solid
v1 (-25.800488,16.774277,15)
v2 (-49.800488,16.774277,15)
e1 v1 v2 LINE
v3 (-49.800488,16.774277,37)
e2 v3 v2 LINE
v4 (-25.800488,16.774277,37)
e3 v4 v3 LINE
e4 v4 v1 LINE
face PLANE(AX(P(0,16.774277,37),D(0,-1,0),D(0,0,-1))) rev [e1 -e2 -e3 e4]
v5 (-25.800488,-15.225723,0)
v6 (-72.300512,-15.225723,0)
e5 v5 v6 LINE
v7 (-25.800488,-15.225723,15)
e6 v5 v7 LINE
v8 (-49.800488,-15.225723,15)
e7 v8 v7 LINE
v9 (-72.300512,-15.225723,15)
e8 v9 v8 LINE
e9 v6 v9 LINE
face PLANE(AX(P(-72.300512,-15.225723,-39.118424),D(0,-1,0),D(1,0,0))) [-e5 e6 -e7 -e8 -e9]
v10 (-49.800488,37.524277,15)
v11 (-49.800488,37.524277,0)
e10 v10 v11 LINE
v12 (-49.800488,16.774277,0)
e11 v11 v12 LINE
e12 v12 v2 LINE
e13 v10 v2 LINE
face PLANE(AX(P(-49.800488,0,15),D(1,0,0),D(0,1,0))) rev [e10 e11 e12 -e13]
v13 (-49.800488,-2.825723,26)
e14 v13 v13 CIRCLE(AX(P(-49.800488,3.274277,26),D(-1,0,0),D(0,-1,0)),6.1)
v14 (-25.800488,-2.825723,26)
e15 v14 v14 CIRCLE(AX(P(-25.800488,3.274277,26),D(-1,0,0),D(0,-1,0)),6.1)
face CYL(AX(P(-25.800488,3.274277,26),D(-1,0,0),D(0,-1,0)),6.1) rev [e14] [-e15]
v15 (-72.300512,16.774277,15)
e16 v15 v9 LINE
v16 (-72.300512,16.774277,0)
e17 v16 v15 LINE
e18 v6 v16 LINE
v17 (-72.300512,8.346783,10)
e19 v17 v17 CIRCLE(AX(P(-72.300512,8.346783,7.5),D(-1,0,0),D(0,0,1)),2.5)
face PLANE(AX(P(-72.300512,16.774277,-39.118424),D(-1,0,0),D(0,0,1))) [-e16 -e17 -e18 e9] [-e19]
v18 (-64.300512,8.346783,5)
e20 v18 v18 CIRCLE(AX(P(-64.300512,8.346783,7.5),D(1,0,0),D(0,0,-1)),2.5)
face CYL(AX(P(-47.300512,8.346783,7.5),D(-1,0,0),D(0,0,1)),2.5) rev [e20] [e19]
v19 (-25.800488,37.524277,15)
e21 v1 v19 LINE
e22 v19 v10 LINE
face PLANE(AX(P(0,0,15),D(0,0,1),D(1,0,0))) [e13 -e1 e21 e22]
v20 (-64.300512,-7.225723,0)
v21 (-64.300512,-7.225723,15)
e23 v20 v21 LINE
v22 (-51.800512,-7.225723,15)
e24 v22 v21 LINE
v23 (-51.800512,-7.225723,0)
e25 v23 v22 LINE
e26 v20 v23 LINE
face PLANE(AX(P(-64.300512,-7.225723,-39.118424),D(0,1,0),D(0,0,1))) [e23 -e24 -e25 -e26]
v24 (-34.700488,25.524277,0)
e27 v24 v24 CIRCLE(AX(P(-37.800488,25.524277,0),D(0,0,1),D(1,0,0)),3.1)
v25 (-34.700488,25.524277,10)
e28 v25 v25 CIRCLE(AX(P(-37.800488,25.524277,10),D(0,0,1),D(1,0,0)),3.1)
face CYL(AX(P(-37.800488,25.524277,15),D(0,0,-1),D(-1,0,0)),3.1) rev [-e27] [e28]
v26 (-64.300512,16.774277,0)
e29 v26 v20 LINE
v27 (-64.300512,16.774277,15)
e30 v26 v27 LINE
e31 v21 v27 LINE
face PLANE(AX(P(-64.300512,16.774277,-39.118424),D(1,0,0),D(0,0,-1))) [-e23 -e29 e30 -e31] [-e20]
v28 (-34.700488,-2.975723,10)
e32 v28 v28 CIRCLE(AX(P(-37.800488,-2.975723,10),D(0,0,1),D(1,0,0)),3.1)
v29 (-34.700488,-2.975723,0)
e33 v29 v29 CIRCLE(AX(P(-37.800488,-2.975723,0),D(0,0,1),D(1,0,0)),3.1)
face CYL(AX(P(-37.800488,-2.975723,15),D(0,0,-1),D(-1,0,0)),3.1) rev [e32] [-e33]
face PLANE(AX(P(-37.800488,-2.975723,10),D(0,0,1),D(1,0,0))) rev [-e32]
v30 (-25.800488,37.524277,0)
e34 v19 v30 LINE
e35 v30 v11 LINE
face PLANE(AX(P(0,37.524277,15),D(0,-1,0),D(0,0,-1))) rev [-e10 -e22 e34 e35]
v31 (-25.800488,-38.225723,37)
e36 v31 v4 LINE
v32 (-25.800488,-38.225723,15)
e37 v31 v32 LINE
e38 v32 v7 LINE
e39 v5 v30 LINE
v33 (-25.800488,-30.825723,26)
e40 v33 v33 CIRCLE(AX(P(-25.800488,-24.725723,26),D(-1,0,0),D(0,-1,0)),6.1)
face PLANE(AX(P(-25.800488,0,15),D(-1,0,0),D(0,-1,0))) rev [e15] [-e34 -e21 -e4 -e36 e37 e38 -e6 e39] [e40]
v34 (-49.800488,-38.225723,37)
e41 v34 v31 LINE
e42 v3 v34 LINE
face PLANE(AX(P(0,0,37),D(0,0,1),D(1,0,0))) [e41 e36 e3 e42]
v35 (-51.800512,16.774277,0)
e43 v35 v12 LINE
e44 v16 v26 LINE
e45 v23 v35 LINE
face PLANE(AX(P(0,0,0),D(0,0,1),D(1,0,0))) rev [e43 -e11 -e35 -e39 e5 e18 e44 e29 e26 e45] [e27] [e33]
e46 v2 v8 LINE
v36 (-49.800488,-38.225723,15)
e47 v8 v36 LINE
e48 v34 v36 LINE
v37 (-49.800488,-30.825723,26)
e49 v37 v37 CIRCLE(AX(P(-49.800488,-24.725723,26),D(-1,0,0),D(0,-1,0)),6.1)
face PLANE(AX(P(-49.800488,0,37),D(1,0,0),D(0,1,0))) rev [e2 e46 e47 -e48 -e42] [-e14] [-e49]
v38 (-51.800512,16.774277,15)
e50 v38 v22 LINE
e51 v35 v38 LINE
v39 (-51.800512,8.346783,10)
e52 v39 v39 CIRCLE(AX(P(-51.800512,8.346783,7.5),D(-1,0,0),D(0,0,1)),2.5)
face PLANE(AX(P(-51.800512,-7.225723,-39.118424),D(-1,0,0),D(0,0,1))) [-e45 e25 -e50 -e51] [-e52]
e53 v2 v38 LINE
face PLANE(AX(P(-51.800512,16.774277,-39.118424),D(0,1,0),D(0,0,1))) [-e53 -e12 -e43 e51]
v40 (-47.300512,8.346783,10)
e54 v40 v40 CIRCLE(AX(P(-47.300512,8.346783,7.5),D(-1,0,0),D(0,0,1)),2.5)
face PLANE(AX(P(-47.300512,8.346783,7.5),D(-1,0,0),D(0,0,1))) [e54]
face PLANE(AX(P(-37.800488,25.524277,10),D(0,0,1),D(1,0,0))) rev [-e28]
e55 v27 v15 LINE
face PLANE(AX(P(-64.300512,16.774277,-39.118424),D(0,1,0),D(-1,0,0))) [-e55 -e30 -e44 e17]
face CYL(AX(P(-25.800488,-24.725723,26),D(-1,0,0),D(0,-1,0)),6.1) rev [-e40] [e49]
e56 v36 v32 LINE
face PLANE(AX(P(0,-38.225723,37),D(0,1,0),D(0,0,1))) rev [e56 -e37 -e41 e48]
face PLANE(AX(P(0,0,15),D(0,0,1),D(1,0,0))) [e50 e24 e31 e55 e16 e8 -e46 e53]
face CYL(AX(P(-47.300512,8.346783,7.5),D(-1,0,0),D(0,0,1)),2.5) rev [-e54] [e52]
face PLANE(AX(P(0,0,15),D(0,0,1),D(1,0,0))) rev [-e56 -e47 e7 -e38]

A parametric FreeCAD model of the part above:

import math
import FreeCAD as App
import Part
import Sketcher
from FreeCAD import Vector
Q = App.Units.Quantity

doc = App.newDocument("Part")
body = doc.addObject("PartDesign::Body", "Body")

# Sketch on XY plane
sketch1 = body.newObject("Sketcher::SketchObject", "Sketch")
sketch1.AttachmentSupport = (doc.getObject("XY_Plane"), [""])
sketch1.MapMode = "FlatFace"
sketch1.addGeometry(Part.LineSegment(Vector(-25.800488, 37.524277, 0), Vector(-49.800488, 37.524277, 0)), False)
sketch1.addGeometry(Part.LineSegment(Vector(-49.800488, 37.524277, 0), Vector(-49.800488, -14.975723, 0)), False)
sketch1.addGeometry(Part.LineSegment(Vector(-49.800488, -14.975723, 0), Vector(-41.800488, -45.286415, 0)), False)
sketch1.addGeometry(Part.ArcOfCircle(Part.Circle(Vector(-37.800488, -45.286415, 0), Vector(0, 0, 1), 4), math.radians(180), math.radians(360)), False)
sketch1.addGeometry(Part.LineSegment(Vector(-33.800488, -45.286415, 0), Vector(-25.800488, -14.975723, 0)), False)
sketch1.addGeometry(Part.LineSegment(Vector(-25.800488, -14.975723, 0), Vector(-25.800488, 37.524277, 0)), False)
sketch1.addGeometry(Part.Circle(Vector(-37.800488, -45.286415, 0), Vector(0, 0, 1), 2.5), False)
sketch1.addGeometry(Part.Circle(Vector(-37.800488, -2.975723, 0), Vector(0, 0, 1), 3.1), False)
sketch1.addGeometry(Part.Circle(Vector(-37.800488, 25.524277, 0), Vector(0, 0, 1), 3.1), False)
sketch1.addConstraint(Sketcher.Constraint("Coincident", 0, 2, 1, 1))
sketch1.addConstraint(Sketcher.Constraint("Coincident", 1, 2, 2, 1))
sketch1.addConstraint(Sketcher.Constraint("Coincident", 2, 2, 3, 1))
sketch1.addConstraint(Sketcher.Constraint("Coincident", 3, 2, 4, 1))
sketch1.addConstraint(Sketcher.Constraint("Coincident", 4, 2, 5, 1))
sketch1.addConstraint(Sketcher.Constraint("Coincident", 5, 2, 0, 1))
sketch1.addConstraint(Sketcher.Constraint("Horizontal", 0))
sketch1.addConstraint(Sketcher.Constraint("Vertical", 1))
sketch1.addConstraint(Sketcher.Constraint("Vertical", 5))
sketch1.addConstraint(Sketcher.Constraint("Coincident", 6, 3, 3, 3))
sketch1.addConstraint(Sketcher.Constraint("Equal", 7, 8))
sketch1.addConstraint(Sketcher.Constraint("Horizontal", 6, 3, 2, 2))
sketch1.addConstraint(Sketcher.Constraint("Horizontal", 2, 2, 3, 2))
sketch1.addConstraint(Sketcher.Constraint("Horizontal", 1, 2, 4, 2))
sketch1.addConstraint(Sketcher.Constraint("Vertical", 6, 3, 7, 3))
sketch1.addConstraint(Sketcher.Constraint("Vertical", 7, 3, 8, 3))
sketch1.addConstraint(Sketcher.Constraint("Equal", 2, 4))
sketch1.addConstraint(Sketcher.Constraint("Diameter", 6, Q("5 mm")))
sketch1.addConstraint(Sketcher.Constraint("Radius", 3, Q("4 mm")))
sketch1.addConstraint(Sketcher.Constraint("Diameter", 7, Q("6.2 mm")))
sketch1.addConstraint(Sketcher.Constraint("DistanceX", 0, 2, 0, 1, Q("24 mm")))
sketch1.addConstraint(Sketcher.Constraint("DistanceY", 1, 2, 1, 1, Q("52.5 mm")))
sketch1.addConstraint(Sketcher.Constraint("DistanceY", 8, 3, 0, 2, Q("12 mm")))
sketch1.addConstraint(Sketcher.Constraint("DistanceY", 1, 2, 7, 3, Q("12 mm")))
sketch1.addConstraint(Sketcher.Constraint("DistanceX", 3, 3, -1, 1, Q("37.800488 mm")))
sketch1.addConstraint(Sketcher.Constraint("DistanceY", 3, 3, 7, 3, Q("42.310691 mm")))
sketch1.addConstraint(Sketcher.Constraint("DistanceY", 3, 3, -1, 1, Q("45.286415 mm")))
pad1 = body.newObject("PartDesign::Pad", "Pad")
pad1.Profile = sketch1
pad1.Length = 15

# Sketch on XY plane
sketch2 = body.newObject("Sketcher::SketchObject", "Sketch001")
sketch2.AttachmentSupport = (doc.getObject("XY_Plane"), [""])
sketch2.MapMode = "FlatFace"
sketch2.AttachmentOffset = App.Placement(Vector(0, 0, 15), App.Rotation())
sketch2.addGeometry(Part.Circle(Vector(-37.800488, -2.975723, 0), Vector(0, 0, 1), 3.1), False)
sketch2.addGeometry(Part.Circle(Vector(-37.800488, 25.524277, 0), Vector(0, 0, 1), 3.1), False)
sketch2.addConstraint(Sketcher.Constraint("Equal", 0, 1))
sketch2.addConstraint(Sketcher.Constraint("Vertical", 0, 3, 1, 3))
sketch2.addConstraint(Sketcher.Constraint("Diameter", 0, Q("6.2 mm")))
sketch2.addConstraint(Sketcher.Constraint("DistanceY", 0, 3, 1, 3, Q("28.5 mm")))
sketch2.addConstraint(Sketcher.Constraint("DistanceX", 0, 3, -1, 1, Q("37.800488 mm")))
sketch2.addConstraint(Sketcher.Constraint("DistanceY", 0, 3, -1, 1, Q("2.975723 mm")))
pad2 = body.newObject("PartDesign::Pad", "Pad001")
pad2.Profile = sketch2
pad2.Length = 5
pad2.Reversed = True

# Sketch on XY plane
sketch3 = body.newObject("Sketcher::SketchObject", "Sketch002")
sketch3.AttachmentSupport = (doc.getObject("XY_Plane"), [""])
sketch3.MapMode = "FlatFace"
sketch3.AttachmentOffset = App.Placement(Vector(0, 0, 15), App.Rotation())
sketch3.addGeometry(Part.LineSegment(Vector(-49.800488, 16.774277, 0), Vector(-51.800512, 16.774277, 0)), False)
sketch3.addGeometry(Part.LineSegment(Vector(-51.800512, 16.774277, 0), Vector(-51.800512, -7.225723, 0)), False)
sketch3.addGeometry(Part.LineSegment(Vector(-51.800512, -7.225723, 0), Vector(-64.300512, -7.225723, 0)), False)
sketch3.addGeometry(Part.LineSegment(Vector(-64.300512, -7.225723, 0), Vector(-64.300512, 16.774277, 0)), False)
sketch3.addGeometry(Part.LineSegment(Vector(-64.300512, 16.774277, 0), Vector(-72.300512, 16.774277, 0)), False)
sketch3.addGeometry(Part.LineSegment(Vector(-72.300512, 16.774277, 0), Vector(-72.300512, -15.225723, 0)), False)
sketch3.addGeometry(Part.LineSegment(Vector(-72.300512, -15.225723, 0), Vector(-49.800488, -15.225723, 0)), False)
sketch3.addGeometry(Part.LineSegment(Vector(-49.800488, -15.225723, 0), Vector(-49.800488, 16.774277, 0)), False)
sketch3.addConstraint(Sketcher.Constraint("Coincident", 0, 2, 1, 1))
sketch3.addConstraint(Sketcher.Constraint("Coincident", 1, 2, 2, 1))
sketch3.addConstraint(Sketcher.Constraint("Coincident", 2, 2, 3, 1))
sketch3.addConstraint(Sketcher.Constraint("Coincident", 3, 2, 4, 1))
sketch3.addConstraint(Sketcher.Constraint("Coincident", 4, 2, 5, 1))
sketch3.addConstraint(Sketcher.Constraint("Coincident", 5, 2, 6, 1))
sketch3.addConstraint(Sketcher.Constraint("Coincident", 6, 2, 7, 1))
sketch3.addConstraint(Sketcher.Constraint("Coincident", 7, 2, 0, 1))
sketch3.addConstraint(Sketcher.Constraint("Horizontal", 0))
sketch3.addConstraint(Sketcher.Constraint("Vertical", 1))
sketch3.addConstraint(Sketcher.Constraint("Horizontal", 2))
sketch3.addConstraint(Sketcher.Constraint("Vertical", 3))
sketch3.addConstraint(Sketcher.Constraint("Horizontal", 4))
sketch3.addConstraint(Sketcher.Constraint("Vertical", 5))
sketch3.addConstraint(Sketcher.Constraint("Horizontal", 6))
sketch3.addConstraint(Sketcher.Constraint("Vertical", 7))
sketch3.addConstraint(Sketcher.Constraint("Horizontal", 0, 2, 3, 2))
sketch3.addConstraint(Sketcher.Constraint("DistanceX", 4, 2, 4, 1, Q("8 mm")))
sketch3.addConstraint(Sketcher.Constraint("DistanceY", 1, 2, 1, 1, Q("24 mm")))
sketch3.addConstraint(Sketcher.Constraint("DistanceY", 5, 2, 5, 1, Q("32 mm")))
sketch3.addConstraint(Sketcher.Constraint("DistanceX", 2, 2, 2, 1, Q("12.5 mm")))
sketch3.addConstraint(Sketcher.Constraint("DistanceX", 0, 2, 0, 1, Q("2.000024 mm")))
sketch3.addConstraint(Sketcher.Constraint("DistanceX", 0, 2, -1, 1, Q("51.800512 mm")))
sketch3.addConstraint(Sketcher.Constraint("DistanceY", -1, 1, 0, 2, Q("16.774277 mm")))
pad3 = body.newObject("PartDesign::Pad", "Pad002")
pad3.Profile = sketch3
pad3.Length = 15
pad3.Reversed = True

# Sketch on YZ plane
sketch4 = body.newObject("Sketcher::SketchObject", "Sketch003")
sketch4.AttachmentSupport = (doc.getObject("YZ_Plane"), [""])
sketch4.MapMode = "FlatFace"
sketch4.AttachmentOffset = App.Placement(Vector(0, 0, -72.300512), App.Rotation())
sketch4.addGeometry(Part.Circle(Vector(8.346783, 7.5, 0), Vector(0, 0, 1), 2.5), False)
sketch4.addConstraint(Sketcher.Constraint("Diameter", 0, Q("5 mm")))
sketch4.addConstraint(Sketcher.Constraint("DistanceY", -1, 1, 0, 3, Q("7.5 mm")))
sketch4.addConstraint(Sketcher.Constraint("DistanceX", -1, 1, 0, 3, Q("8.346783 mm")))
pocket1 = body.newObject("PartDesign::Pocket", "Pocket")
pocket1.Profile = sketch4
pocket1.Length = 25
pocket1.Reversed = True

# Sketch on XY plane
sketch5 = body.newObject("Sketcher::SketchObject", "Sketch004")
sketch5.AttachmentSupport = (doc.getObject("XY_Plane"), [""])
sketch5.MapMode = "FlatFace"
sketch5.AttachmentOffset = App.Placement(Vector(0, 0, 15), App.Rotation())
sketch5.addGeometry(Part.LineSegment(Vector(-49.800488, -14.975723, 0), Vector(-49.800488, -50.615056, 0)), False)
sketch5.addGeometry(Part.LineSegment(Vector(-49.800488, -50.615056, 0), Vector(-25.800488, -50.615056, 0)), False)
sketch5.addGeometry(Part.LineSegment(Vector(-25.800488, -50.615056, 0), Vector(-25.800488, -14.975723, 0)), False)
sketch5.addGeometry(Part.LineSegment(Vector(-25.800488, -14.975723, 0), Vector(-49.800488, -14.975723, 0)), False)
sketch5.addConstraint(Sketcher.Constraint("Coincident", 0, 2, 1, 1))
sketch5.addConstraint(Sketcher.Constraint("Coincident", 1, 2, 2, 1))
sketch5.addConstraint(Sketcher.Constraint("Coincident", 2, 2, 3, 1))
sketch5.addConstraint(Sketcher.Constraint("Coincident", 3, 2, 0, 1))
sketch5.addConstraint(Sketcher.Constraint("Vertical", 0))
sketch5.addConstraint(Sketcher.Constraint("Horizontal", 1))
sketch5.addConstraint(Sketcher.Constraint("Vertical", 2))
sketch5.addConstraint(Sketcher.Constraint("Horizontal", 3))
sketch5.addConstraint(Sketcher.Constraint("DistanceX", 1, 1, 1, 2, Q("24 mm")))
sketch5.addConstraint(Sketcher.Constraint("DistanceY", 0, 2, 0, 1, Q("35.639332 mm")))
sketch5.addConstraint(Sketcher.Constraint("DistanceX", 0, 2, -1, 1, Q("49.800488 mm")))
sketch5.addConstraint(Sketcher.Constraint("DistanceY", 0, 2, -1, 1, Q("50.615056 mm")))
pocket2 = body.newObject("PartDesign::Pocket", "Pocket001")
pocket2.Profile = sketch5
pocket2.Type = "ThroughAll"

# Sketch on XY plane
sketch6 = body.newObject("Sketcher::SketchObject", "Sketch005")
sketch6.AttachmentSupport = (doc.getObject("XY_Plane"), [""])
sketch6.MapMode = "FlatFace"
sketch6.AttachmentOffset = App.Placement(Vector(0, 0, 15), App.Rotation())
sketch6.addGeometry(Part.LineSegment(Vector(-49.800488, -14.975723, 0), Vector(-49.800488, -15.225723, 0)), False)
sketch6.addGeometry(Part.LineSegment(Vector(-49.800488, -15.225723, 0), Vector(-25.800488, -15.225723, 0)), False)
sketch6.addGeometry(Part.LineSegment(Vector(-25.800488, -15.225723, 0), Vector(-25.800488, -14.975723, 0)), False)
sketch6.addGeometry(Part.LineSegment(Vector(-25.800488, -14.975723, 0), Vector(-49.800488, -14.975723, 0)), False)
sketch6.addConstraint(Sketcher.Constraint("Coincident", 0, 2, 1, 1))
sketch6.addConstraint(Sketcher.Constraint("Coincident", 1, 2, 2, 1))
sketch6.addConstraint(Sketcher.Constraint("Coincident", 2, 2, 3, 1))
sketch6.addConstraint(Sketcher.Constraint("Coincident", 3, 2, 0, 1))
sketch6.addConstraint(Sketcher.Constraint("Vertical", 0))
sketch6.addConstraint(Sketcher.Constraint("Horizontal", 1))
sketch6.addConstraint(Sketcher.Constraint("Vertical", 2))
sketch6.addConstraint(Sketcher.Constraint("Horizontal", 3))
sketch6.addConstraint(Sketcher.Constraint("DistanceX", 1, 1, 1, 2, Q("24 mm")))
sketch6.addConstraint(Sketcher.Constraint("DistanceY", 0, 2, 0, 1, Q("0.25 mm")))
sketch6.addConstraint(Sketcher.Constraint("DistanceX", 0, 2, -1, 1, Q("49.800488 mm")))
sketch6.addConstraint(Sketcher.Constraint("DistanceY", 0, 2, -1, 1, Q("15.225723 mm")))
pad4 = body.newObject("PartDesign::Pad", "Pad003")
pad4.Profile = sketch6
pad4.Length = 15
pad4.Reversed = True

# Sketch on XY plane
sketch7 = body.newObject("Sketcher::SketchObject", "Sketch006")
sketch7.AttachmentSupport = (doc.getObject("XY_Plane"), [""])
sketch7.MapMode = "FlatFace"
sketch7.AttachmentOffset = App.Placement(Vector(0, 0, 15), App.Rotation())
sketch7.addGeometry(Part.LineSegment(Vector(-49.800488, 16.774277, 0), Vector(-49.800488, -38.225723, 0)), False)
sketch7.addGeometry(Part.LineSegment(Vector(-49.800488, -38.225723, 0), Vector(-25.800488, -38.225723, 0)), False)
sketch7.addGeometry(Part.LineSegment(Vector(-25.800488, -38.225723, 0), Vector(-25.800488, 16.774277, 0)), False)
sketch7.addGeometry(Part.LineSegment(Vector(-25.800488, 16.774277, 0), Vector(-49.800488, 16.774277, 0)), False)
sketch7.addConstraint(Sketcher.Constraint("Coincident", 0, 2, 1, 1))
sketch7.addConstraint(Sketcher.Constraint("Coincident", 1, 2, 2, 1))
sketch7.addConstraint(Sketcher.Constraint("Coincident", 2, 2, 3, 1))
sketch7.addConstraint(Sketcher.Constraint("Coincident", 3, 2, 0, 1))
sketch7.addConstraint(Sketcher.Constraint("Vertical", 0))
sketch7.addConstraint(Sketcher.Constraint("Horizontal", 1))
sketch7.addConstraint(Sketcher.Constraint("Vertical", 2))
sketch7.addConstraint(Sketcher.Constraint("Horizontal", 3))
sketch7.addConstraint(Sketcher.Constraint("DistanceX", 1, 1, 1, 2, Q("24 mm")))
sketch7.addConstraint(Sketcher.Constraint("DistanceY", 0, 2, 0, 1, Q("55 mm")))
sketch7.addConstraint(Sketcher.Constraint("DistanceX", 0, 2, -1, 1, Q("49.800488 mm")))
sketch7.addConstraint(Sketcher.Constraint("DistanceY", 0, 2, -1, 1, Q("38.225723 mm")))
pad5 = body.newObject("PartDesign::Pad", "Pad004")
pad5.Profile = sketch7
pad5.Length = 22

# Sketch on YZ plane
sketch8 = body.newObject("Sketcher::SketchObject", "Sketch007")
sketch8.AttachmentSupport = (doc.getObject("YZ_Plane"), [""])
sketch8.MapMode = "FlatFace"
sketch8.AttachmentOffset = App.Placement(Vector(0, 0, -49.800488), App.Rotation())
sketch8.addGeometry(Part.Circle(Vector(3.274277, 26, 0), Vector(0, 0, 1), 6.1), False)
sketch8.addGeometry(Part.Circle(Vector(-24.725723, 26, 0), Vector(0, 0, 1), 6.1), False)
sketch8.addConstraint(Sketcher.Constraint("Equal", 0, 1))
sketch8.addConstraint(Sketcher.Constraint("Horizontal", 0, 3, 1, 3))
sketch8.addConstraint(Sketcher.Constraint("Diameter", 0, Q("12.2 mm")))
sketch8.addConstraint(Sketcher.Constraint("DistanceY", -1, 1, 0, 3, Q("26 mm")))
sketch8.addConstraint(Sketcher.Constraint("DistanceX", 1, 3, 0, 3, Q("28 mm")))
sketch8.addConstraint(Sketcher.Constraint("DistanceX", -1, 1, 0, 3, Q("3.274277 mm")))
pocket3 = body.newObject("PartDesign::Pocket", "Pocket002")
pocket3.Profile = sketch8
pocket3.Type = "ThroughAll"
pocket3.Reversed = True

doc.recompute()
